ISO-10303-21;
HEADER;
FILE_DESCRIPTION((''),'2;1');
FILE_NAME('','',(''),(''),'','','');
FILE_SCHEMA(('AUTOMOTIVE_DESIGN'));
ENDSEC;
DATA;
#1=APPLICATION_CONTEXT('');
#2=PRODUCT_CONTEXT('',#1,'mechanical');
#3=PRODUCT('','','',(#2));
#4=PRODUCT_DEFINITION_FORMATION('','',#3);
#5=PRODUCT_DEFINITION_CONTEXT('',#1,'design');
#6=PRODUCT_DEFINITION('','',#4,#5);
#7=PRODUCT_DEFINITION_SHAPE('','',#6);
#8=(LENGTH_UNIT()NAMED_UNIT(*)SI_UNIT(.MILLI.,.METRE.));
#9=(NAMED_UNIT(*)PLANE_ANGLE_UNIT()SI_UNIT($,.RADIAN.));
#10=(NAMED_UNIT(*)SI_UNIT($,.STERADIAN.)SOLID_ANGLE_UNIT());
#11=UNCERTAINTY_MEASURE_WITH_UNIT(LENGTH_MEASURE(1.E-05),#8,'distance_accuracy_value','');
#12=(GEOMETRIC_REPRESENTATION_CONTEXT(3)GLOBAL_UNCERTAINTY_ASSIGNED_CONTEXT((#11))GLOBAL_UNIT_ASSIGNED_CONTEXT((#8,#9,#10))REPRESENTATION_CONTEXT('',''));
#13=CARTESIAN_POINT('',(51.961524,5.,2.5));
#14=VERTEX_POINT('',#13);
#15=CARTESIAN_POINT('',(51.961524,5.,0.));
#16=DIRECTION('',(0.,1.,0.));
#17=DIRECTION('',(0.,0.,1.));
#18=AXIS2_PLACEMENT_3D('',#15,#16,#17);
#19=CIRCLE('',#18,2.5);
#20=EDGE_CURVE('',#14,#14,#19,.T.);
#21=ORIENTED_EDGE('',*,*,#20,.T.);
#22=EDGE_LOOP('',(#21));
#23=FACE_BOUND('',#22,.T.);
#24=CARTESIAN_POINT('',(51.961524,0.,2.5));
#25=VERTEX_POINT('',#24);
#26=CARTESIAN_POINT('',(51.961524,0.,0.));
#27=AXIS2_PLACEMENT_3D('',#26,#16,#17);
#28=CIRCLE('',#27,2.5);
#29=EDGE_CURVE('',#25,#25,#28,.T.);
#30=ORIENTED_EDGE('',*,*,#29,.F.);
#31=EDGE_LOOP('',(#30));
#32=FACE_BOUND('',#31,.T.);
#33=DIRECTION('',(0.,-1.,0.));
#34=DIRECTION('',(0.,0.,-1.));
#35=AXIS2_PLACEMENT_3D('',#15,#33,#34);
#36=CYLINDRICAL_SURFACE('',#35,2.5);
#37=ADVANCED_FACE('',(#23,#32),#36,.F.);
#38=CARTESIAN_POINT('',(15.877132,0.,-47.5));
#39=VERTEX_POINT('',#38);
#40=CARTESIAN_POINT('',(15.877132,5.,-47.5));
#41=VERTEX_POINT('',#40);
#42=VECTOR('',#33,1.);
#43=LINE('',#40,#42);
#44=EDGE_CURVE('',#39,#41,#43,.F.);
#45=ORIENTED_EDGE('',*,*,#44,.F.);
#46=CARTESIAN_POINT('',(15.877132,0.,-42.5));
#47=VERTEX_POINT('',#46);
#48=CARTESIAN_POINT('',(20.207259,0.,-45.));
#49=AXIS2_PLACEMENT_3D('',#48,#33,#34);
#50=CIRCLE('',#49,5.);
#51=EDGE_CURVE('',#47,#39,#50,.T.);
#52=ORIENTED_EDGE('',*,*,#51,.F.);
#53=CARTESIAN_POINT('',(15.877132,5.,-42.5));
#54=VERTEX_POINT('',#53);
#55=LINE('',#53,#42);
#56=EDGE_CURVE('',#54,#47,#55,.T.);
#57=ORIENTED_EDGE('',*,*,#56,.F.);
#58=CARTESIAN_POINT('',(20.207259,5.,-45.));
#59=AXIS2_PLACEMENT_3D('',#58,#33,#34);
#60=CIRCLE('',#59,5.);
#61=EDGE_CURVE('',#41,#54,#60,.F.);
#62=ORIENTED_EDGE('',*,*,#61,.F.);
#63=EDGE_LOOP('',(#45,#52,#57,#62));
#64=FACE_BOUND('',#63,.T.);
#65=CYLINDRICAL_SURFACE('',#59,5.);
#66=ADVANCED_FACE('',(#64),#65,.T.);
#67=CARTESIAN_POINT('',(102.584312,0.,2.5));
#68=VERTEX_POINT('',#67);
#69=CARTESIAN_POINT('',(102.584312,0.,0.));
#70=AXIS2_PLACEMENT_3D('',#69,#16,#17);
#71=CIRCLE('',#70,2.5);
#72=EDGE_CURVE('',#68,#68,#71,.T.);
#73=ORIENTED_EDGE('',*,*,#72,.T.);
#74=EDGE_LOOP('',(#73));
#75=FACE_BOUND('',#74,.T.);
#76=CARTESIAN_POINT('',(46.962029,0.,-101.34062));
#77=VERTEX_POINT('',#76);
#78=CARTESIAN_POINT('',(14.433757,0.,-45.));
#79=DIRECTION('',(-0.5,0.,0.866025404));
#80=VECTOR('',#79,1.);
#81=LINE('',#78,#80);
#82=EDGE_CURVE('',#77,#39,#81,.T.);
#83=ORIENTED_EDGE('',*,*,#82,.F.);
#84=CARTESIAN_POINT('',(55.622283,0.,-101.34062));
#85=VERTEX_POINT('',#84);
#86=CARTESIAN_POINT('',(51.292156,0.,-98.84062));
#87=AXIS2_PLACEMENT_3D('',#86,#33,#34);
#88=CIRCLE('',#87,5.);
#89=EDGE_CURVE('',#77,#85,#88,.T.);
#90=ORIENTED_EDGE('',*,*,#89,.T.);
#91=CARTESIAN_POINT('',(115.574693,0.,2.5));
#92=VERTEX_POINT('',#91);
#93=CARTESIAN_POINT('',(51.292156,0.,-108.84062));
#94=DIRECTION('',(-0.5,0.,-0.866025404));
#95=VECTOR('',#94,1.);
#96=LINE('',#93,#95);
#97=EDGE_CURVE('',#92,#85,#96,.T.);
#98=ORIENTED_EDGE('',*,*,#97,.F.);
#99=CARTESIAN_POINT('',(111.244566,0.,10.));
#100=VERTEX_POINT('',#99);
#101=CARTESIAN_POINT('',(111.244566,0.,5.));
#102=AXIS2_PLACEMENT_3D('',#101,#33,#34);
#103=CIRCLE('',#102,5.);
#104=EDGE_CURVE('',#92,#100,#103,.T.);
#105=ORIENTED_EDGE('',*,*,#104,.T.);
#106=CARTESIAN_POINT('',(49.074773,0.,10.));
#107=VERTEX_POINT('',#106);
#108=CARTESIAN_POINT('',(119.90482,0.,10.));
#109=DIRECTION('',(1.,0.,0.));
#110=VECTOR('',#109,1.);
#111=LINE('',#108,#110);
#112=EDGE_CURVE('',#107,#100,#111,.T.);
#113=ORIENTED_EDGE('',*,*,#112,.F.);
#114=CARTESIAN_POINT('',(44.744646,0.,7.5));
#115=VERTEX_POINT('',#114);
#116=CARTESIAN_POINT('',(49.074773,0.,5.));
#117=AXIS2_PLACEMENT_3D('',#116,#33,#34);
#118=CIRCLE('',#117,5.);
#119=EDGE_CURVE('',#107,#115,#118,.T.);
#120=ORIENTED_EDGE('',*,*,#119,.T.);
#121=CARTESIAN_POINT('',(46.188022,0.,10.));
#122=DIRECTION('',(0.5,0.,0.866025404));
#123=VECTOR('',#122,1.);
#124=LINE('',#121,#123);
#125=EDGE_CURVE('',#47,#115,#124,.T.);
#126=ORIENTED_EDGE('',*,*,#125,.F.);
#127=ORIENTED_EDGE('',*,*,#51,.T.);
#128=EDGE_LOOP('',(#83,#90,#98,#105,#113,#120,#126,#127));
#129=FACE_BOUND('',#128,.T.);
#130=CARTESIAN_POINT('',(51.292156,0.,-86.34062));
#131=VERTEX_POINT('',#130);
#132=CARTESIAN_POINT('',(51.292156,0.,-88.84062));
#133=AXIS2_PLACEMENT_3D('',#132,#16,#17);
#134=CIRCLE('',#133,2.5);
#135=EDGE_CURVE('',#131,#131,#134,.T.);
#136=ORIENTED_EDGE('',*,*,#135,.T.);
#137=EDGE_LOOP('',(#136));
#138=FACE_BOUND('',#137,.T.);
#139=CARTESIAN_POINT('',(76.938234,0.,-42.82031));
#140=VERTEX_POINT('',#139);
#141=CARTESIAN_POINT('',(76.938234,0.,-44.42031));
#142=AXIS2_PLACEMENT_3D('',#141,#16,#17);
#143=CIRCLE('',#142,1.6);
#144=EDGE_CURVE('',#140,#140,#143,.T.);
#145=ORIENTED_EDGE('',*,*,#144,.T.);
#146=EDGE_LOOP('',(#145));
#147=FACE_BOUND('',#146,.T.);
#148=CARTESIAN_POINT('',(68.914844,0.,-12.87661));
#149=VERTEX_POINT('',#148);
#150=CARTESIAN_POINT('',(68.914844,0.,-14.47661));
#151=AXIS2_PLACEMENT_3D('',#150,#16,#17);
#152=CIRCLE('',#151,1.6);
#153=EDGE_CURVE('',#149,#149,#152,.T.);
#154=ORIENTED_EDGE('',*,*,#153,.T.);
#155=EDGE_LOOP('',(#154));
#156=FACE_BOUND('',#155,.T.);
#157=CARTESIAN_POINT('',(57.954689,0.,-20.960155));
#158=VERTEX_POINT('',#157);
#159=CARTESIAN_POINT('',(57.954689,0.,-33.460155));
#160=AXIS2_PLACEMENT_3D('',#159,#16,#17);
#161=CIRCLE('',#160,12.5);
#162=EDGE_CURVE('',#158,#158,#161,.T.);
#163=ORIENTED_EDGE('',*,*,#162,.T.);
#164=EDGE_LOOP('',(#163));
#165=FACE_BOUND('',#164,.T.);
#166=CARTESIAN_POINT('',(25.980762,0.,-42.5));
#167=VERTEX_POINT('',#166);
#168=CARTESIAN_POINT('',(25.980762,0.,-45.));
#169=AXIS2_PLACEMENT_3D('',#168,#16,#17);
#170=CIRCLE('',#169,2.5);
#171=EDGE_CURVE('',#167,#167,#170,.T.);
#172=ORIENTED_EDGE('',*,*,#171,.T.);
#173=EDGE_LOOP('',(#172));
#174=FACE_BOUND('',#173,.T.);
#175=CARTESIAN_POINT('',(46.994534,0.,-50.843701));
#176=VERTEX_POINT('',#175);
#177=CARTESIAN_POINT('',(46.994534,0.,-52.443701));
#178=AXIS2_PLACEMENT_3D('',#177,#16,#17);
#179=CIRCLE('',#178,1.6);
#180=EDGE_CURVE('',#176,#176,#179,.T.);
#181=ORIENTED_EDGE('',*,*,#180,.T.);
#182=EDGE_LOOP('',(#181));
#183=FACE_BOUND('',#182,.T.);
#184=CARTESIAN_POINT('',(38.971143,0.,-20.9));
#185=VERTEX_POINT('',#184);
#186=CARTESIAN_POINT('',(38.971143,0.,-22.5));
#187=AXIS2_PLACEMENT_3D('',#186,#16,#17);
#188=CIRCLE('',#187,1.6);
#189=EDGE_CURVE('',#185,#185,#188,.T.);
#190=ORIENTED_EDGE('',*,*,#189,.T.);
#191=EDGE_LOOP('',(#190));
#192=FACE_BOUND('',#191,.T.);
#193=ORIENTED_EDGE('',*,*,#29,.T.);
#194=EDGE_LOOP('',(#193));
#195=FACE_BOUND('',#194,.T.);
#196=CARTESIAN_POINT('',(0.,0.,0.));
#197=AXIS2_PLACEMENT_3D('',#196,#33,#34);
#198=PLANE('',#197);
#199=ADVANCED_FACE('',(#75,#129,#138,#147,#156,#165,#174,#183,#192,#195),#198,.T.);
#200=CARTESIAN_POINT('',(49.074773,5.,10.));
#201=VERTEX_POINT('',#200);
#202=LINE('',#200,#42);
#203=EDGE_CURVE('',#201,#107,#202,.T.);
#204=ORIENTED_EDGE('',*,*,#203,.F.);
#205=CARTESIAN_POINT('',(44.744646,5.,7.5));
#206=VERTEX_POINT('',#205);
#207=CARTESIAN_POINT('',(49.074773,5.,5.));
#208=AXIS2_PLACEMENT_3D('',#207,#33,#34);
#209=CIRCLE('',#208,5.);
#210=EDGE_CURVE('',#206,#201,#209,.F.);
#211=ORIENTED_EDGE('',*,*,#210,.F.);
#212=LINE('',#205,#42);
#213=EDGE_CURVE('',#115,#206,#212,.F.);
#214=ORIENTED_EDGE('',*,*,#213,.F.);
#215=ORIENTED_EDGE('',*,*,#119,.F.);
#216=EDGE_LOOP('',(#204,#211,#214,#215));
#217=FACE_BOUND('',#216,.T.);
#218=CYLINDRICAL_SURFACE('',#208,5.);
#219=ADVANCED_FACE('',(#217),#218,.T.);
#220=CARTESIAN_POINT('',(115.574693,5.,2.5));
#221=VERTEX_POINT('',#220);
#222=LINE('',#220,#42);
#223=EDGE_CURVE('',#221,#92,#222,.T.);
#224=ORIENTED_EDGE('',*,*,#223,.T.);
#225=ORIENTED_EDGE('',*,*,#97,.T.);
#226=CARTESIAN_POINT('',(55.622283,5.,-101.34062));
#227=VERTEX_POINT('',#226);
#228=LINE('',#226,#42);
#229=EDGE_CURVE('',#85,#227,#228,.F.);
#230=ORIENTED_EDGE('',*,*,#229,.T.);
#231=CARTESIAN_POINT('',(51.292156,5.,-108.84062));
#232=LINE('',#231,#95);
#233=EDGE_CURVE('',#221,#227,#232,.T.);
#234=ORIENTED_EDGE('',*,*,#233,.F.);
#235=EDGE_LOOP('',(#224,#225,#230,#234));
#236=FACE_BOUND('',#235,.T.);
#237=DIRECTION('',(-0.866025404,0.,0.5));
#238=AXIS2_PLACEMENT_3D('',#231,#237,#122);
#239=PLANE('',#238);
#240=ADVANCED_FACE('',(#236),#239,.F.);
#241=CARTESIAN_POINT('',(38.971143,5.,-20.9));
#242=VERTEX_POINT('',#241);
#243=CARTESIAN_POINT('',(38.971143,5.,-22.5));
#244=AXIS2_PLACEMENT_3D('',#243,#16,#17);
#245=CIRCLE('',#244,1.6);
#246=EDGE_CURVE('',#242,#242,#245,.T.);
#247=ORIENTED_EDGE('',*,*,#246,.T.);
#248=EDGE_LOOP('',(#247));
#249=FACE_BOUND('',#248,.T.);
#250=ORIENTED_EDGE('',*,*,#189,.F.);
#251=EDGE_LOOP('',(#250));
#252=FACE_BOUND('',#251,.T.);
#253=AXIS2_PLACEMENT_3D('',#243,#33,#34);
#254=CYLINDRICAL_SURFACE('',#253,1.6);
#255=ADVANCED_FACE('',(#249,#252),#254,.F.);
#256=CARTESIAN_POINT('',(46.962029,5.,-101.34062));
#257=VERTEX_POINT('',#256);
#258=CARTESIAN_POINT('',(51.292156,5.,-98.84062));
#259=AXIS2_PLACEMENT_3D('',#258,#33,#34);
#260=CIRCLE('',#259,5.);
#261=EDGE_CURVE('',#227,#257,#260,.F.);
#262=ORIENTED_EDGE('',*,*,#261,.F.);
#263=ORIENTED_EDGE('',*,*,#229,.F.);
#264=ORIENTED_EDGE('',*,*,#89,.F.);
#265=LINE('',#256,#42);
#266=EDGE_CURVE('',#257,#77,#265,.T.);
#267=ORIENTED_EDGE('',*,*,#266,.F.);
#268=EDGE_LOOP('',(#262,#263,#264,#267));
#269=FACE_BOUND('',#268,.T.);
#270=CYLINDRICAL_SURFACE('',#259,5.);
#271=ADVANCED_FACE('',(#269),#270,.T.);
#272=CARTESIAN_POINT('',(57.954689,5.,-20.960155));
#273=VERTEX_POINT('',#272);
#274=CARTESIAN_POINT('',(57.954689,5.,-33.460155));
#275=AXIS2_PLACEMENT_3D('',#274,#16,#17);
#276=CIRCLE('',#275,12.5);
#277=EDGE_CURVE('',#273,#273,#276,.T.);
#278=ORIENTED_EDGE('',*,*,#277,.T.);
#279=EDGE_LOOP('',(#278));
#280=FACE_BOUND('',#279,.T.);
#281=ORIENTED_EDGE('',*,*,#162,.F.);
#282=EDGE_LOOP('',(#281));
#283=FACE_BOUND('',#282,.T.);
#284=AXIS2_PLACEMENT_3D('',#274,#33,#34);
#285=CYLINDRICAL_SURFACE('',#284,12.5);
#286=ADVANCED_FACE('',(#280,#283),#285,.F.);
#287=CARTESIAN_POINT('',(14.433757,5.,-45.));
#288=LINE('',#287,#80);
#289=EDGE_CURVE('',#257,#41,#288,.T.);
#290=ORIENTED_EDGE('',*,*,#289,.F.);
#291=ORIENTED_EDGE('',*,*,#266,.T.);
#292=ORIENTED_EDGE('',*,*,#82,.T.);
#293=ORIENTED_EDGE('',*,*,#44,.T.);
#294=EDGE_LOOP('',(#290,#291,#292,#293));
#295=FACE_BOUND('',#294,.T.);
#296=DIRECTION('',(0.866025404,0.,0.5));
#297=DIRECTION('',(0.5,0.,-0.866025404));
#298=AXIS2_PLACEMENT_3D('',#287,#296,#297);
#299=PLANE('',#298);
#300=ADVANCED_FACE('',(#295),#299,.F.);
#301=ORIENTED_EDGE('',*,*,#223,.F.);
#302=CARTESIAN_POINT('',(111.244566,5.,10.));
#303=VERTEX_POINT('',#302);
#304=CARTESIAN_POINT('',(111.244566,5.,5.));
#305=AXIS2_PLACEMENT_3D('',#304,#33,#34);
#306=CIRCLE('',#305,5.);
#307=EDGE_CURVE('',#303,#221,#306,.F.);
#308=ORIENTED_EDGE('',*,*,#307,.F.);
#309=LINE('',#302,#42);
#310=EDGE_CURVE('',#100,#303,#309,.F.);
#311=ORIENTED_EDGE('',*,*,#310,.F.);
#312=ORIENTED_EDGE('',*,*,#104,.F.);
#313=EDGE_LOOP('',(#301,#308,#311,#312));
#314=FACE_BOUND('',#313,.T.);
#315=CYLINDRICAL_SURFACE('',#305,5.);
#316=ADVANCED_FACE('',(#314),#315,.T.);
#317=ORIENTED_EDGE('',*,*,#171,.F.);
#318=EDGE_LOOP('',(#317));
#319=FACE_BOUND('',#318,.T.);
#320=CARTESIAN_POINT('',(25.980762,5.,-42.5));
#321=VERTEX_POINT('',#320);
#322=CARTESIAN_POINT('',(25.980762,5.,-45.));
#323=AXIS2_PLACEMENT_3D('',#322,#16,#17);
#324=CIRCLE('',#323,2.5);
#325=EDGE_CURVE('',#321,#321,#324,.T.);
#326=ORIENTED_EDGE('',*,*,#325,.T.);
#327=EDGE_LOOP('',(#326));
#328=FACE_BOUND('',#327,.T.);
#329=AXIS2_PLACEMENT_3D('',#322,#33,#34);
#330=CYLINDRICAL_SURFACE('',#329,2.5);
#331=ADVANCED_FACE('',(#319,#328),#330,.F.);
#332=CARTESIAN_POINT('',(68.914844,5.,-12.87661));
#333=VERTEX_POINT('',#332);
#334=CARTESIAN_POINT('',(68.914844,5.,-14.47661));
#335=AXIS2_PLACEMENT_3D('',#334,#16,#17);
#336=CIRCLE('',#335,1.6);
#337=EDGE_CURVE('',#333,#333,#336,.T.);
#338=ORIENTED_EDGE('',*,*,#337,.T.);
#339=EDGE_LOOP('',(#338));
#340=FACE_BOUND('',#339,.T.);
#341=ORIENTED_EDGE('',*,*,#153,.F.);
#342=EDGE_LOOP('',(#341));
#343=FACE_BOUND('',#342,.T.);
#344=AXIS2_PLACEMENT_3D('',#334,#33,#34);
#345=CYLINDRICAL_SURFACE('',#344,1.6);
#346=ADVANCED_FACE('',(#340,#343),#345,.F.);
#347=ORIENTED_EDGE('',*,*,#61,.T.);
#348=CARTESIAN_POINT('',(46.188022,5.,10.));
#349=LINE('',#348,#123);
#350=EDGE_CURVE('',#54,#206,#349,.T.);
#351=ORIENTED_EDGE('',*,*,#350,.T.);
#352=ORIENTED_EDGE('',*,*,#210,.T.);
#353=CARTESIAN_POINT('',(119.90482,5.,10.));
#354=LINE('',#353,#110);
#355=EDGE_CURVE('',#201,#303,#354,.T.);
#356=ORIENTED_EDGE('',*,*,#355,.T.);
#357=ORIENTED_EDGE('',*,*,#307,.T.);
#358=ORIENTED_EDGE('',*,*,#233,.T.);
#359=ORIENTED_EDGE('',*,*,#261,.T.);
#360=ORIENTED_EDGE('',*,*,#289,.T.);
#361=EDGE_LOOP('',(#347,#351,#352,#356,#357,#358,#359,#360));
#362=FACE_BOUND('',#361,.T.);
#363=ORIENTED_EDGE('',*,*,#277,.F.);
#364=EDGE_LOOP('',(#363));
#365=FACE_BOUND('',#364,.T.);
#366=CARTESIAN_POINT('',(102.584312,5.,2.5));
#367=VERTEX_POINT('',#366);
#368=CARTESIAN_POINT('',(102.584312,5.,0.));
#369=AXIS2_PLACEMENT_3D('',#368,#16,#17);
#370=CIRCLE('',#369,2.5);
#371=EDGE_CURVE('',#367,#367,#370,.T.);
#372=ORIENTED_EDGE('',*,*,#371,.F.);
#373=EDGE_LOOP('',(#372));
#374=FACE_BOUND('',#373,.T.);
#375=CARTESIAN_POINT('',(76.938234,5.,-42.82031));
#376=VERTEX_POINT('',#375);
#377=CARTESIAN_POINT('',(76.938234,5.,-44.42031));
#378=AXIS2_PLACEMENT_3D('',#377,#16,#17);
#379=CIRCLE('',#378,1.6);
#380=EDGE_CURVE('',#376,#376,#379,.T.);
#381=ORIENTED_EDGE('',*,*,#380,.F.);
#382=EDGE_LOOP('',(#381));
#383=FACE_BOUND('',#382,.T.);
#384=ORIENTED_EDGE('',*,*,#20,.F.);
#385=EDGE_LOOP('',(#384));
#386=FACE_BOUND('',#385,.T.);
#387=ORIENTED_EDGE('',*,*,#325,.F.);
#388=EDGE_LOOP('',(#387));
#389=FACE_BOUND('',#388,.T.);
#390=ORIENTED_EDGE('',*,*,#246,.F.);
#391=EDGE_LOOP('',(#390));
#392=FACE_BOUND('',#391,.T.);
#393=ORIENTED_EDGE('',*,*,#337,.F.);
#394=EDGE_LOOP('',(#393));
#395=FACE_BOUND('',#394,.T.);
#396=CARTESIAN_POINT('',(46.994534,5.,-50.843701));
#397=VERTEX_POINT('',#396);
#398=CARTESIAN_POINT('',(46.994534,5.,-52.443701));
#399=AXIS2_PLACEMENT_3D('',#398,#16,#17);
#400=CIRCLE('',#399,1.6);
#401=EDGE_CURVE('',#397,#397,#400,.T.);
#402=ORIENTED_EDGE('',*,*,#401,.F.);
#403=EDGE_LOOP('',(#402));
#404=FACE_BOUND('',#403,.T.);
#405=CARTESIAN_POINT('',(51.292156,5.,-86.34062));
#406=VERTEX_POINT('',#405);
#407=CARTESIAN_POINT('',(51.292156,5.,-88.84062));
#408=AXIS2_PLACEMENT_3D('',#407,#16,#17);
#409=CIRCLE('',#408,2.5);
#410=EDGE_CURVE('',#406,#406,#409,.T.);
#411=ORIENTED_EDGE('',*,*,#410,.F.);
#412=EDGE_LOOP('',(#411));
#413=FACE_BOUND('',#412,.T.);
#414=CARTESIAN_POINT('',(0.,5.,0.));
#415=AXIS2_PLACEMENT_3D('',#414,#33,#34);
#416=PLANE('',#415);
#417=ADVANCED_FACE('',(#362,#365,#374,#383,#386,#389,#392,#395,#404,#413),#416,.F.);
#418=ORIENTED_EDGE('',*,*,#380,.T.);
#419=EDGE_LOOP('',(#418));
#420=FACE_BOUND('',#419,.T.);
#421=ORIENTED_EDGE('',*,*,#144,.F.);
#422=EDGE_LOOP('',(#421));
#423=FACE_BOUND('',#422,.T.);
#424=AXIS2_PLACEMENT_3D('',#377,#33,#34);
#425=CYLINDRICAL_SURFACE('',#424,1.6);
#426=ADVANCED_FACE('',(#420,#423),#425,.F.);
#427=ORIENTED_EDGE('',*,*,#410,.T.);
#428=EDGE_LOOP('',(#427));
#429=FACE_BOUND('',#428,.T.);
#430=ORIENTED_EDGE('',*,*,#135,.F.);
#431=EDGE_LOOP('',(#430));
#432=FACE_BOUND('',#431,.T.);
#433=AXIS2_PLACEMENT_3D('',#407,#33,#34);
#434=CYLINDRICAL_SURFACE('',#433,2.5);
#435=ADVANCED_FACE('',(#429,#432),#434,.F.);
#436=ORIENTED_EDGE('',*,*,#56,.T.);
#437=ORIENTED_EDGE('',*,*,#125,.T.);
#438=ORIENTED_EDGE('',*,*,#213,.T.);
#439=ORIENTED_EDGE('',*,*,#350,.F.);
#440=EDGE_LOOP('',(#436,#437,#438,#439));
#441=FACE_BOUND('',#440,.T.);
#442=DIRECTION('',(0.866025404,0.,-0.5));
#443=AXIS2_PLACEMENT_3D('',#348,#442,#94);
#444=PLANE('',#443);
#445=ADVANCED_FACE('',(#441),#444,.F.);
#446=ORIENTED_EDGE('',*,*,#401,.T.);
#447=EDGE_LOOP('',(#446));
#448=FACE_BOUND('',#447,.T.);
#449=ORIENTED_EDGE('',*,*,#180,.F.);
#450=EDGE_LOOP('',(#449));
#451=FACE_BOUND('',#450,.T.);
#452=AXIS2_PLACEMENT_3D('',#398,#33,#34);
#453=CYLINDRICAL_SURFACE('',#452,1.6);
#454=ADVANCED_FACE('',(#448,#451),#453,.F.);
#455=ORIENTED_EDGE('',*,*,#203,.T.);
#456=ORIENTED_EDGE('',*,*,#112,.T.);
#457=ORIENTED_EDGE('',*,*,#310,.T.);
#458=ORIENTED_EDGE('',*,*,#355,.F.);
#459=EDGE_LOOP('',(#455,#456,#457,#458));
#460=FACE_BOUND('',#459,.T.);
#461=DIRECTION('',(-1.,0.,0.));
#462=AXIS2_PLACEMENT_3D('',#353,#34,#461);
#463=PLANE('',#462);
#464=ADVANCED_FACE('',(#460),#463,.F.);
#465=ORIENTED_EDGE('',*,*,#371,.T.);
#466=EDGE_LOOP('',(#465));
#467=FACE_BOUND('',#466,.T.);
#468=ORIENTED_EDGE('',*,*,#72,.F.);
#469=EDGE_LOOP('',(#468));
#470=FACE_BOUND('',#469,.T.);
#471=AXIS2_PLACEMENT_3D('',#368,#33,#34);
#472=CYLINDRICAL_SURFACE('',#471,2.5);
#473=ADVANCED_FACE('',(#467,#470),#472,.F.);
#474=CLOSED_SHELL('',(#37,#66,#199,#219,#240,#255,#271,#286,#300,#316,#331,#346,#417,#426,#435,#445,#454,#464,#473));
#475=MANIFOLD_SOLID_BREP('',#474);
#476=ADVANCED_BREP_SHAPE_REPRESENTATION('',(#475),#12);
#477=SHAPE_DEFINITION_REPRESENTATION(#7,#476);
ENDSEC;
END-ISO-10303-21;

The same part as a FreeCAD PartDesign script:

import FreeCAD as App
import Part
import Sketcher
from FreeCAD import Vector
Q = App.Units.Quantity


def edges_at(feature, points):
    """Names of the edges that pass closest to the given points."""
    edges = feature.Shape.Edges
    near = lambda p: min(range(len(edges)), key=lambda i: edges[i].distToShape(Part.Vertex(*p))[0])
    return sorted({f"Edge{near(p) + 1}" for p in points})


def add_polygon(sketch, points):
    """Adds a closed chain of lines whose ends are joined by coincident constraints."""
    first, n = sketch.GeometryCount, len(points)
    for a, b in zip(points, points[1:] + points[:1]):
        sketch.addGeometry(Part.LineSegment(App.Vector(*a, 0), App.Vector(*b, 0)), False)
    for i in range(n):
        sketch.addConstraint(Sketcher.Constraint("Coincident", first + i, 2, first + (i + 1) % n, 1))

doc = App.newDocument("Part")
body = doc.addObject("PartDesign::Body", "Body")

sketch1 = body.newObject("Sketcher::SketchObject", "Sketch")
sketch1.AttachmentSupport = (doc.getObject("XZ_Plane"), [""])
sketch1.MapMode = "FlatFace"
add_polygon(sketch1, [(119.9, 10), (51.3, -108.8), (14.4, -45), (46.2, 10)])
sketch1.addGeometry(Part.Circle(Vector(102.6, 0, 0), Vector(0, 0, 1), 2.5), False)
sketch1.addGeometry(Part.Circle(Vector(68.9, -14.5, 0), Vector(0, 0, 1), 1.6), False)
sketch1.addGeometry(Part.Circle(Vector(52, 0, 0), Vector(0, 0, 1), 2.5), False)
sketch1.addGeometry(Part.Circle(Vector(58, -33.5, 0), Vector(0, 0, 1), 12.5), False)
sketch1.addGeometry(Part.Circle(Vector(39, -22.5, 0), Vector(0, 0, 1), 1.6), False)
sketch1.addGeometry(Part.Circle(Vector(76.9, -44.4, 0), Vector(0, 0, 1), 1.6), False)
sketch1.addGeometry(Part.Circle(Vector(47, -52.4, 0), Vector(0, 0, 1), 1.6), False)
sketch1.addGeometry(Part.Circle(Vector(26, -45, 0), Vector(0, 0, 1), 2.5), False)
sketch1.addGeometry(Part.Circle(Vector(51.3, -88.8, 0), Vector(0, 0, 1), 2.5), False)
sketch1.addConstraint([
    Sketcher.Constraint("Horizontal", 3),
    Sketcher.Constraint("Equal", 4, 6),
    Sketcher.Constraint("Equal", 5, 8),
    Sketcher.Constraint("Equal", 8, 9),
    Sketcher.Constraint("Equal", 9, 10),
    Sketcher.Constraint("Equal", 6, 11),
    Sketcher.Constraint("Equal", 11, 12),
    Sketcher.Constraint("PointOnObject", 4, 3, -1),
    Sketcher.Constraint("PointOnObject", 6, 3, -1),
    Sketcher.Constraint("Parallel", 0, 2),
    Sketcher.Constraint("Horizontal", 11, 3, 1, 2),
    Sketcher.Constraint("Vertical", 12, 3, 0, 2),
    Sketcher.Constraint("Diameter", 4, Q("5 mm")),
    Sketcher.Constraint("Diameter", 7, Q("25 mm")),
    Sketcher.Constraint("Diameter", 5, Q("3.2 mm")),
    Sketcher.Constraint("Angle", 0, Q("-120 deg")),
    Sketcher.Constraint("Angle", 1, Q("120 deg")),
    Sketcher.Constraint("DistanceY", 11, 3, -1, 1, Q("45 mm")),
    Sketcher.Constraint("DistanceY", -1, 1, 2, 2, Q("10 mm")),
    Sketcher.Constraint("DistanceY", 0, 2, 12, 3, Q("20 mm")),
    Sketcher.Constraint("DistanceY", 8, 3, -1, 1, Q("22.5 mm")),
    Sketcher.Constraint("DistanceX", 3, 1, 3, 2, Q("73.716799 mm")),
    Sketcher.Constraint("DistanceY", 10, 3, -1, 1, Q("52.443701 mm")),
    Sketcher.Constraint("DistanceX", 8, 3, 5, 3, Q("29.943701 mm")),
    Sketcher.Constraint("DistanceY", 9, 3, 5, 3, Q("29.943701 mm")),
    Sketcher.Constraint("DistanceX", 10, 3, 9, 3, Q("29.943701 mm")),
    Sketcher.Constraint("DistanceY", 5, 3, -1, 1, Q("14.47661 mm")),
    Sketcher.Constraint("DistanceX", -1, 1, 7, 3, Q("57.954689 mm")),
    Sketcher.Constraint("DistanceX", -1, 1, 2, 2, Q("46.188022 mm")),
    Sketcher.Constraint("DistanceX", 5, 3, 4, 3, Q("33.669468 mm")),
    Sketcher.Constraint("DistanceX", 6, 3, 5, 3, Q("16.95332 mm")),
    Sketcher.Constraint("DistanceX", 5, 3, 9, 3, Q("8.02339 mm")),
    Sketcher.Constraint("DistanceX", 11, 3, 10, 3, Q("21.013771 mm")),
    Sketcher.Constraint("DistanceX", 12, 3, 9, 3, Q("25.646078 mm")),
    Sketcher.Constraint("DistanceY", 7, 3, -1, 1, Q("33.460155 mm")),
])
pad1 = body.newObject("PartDesign::Pad", "Pad")
pad1.Profile = sketch1
pad1.Length = 5
pad1.Reversed = True
doc.recompute()

fillet = body.newObject("PartDesign::Fillet", "Fillet")
fillet.Base = (pad1, edges_at(pad1, [
    (51.292, 2.5, -108.841),
    (119.905, 2.5, 10),
    (46.188, 2.5, 10),
    (14.434, 2.5, -45),
]))
fillet.Radius = 5

doc.recompute()
